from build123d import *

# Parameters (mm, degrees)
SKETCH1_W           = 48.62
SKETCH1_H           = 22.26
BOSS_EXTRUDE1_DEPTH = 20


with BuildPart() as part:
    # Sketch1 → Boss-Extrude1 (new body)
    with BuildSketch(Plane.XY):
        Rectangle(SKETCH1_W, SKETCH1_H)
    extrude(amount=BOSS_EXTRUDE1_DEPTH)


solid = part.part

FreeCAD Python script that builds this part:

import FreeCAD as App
import Part
import Sketcher
Q = App.Units.Quantity


def add_polygon(sketch, points):
    """Adds a closed chain of lines whose ends are joined by coincident constraints."""
    first, n = sketch.GeometryCount, len(points)
    for a, b in zip(points, points[1:] + points[:1]):
        sketch.addGeometry(Part.LineSegment(App.Vector(*a, 0), App.Vector(*b, 0)), False)
    for i in range(n):
        sketch.addConstraint(Sketcher.Constraint("Coincident", first + i, 2, first + (i + 1) % n, 1))

doc = App.newDocument("Part")
params = doc.addObject("Spreadsheet::Sheet", "Params")
for row, (alias, value) in enumerate([
    ("sketch1_width", "48.62 mm"),
    ("sketch1_height", "22.26 mm"),
    ("pad1_length", "20 mm"),
], start=1):
    params.set(f"A{row}", alias)
    params.set(f"B{row}", "=" + value)
    params.setAlias(f"B{row}", alias)

body = doc.addObject("PartDesign::Body", "Body")

# Sketch on XY plane
sketch1 = body.newObject("Sketcher::SketchObject", "Sketch")
sketch1.AttachmentSupport = (doc.getObject("XY_Plane"), [""])
sketch1.MapMode = "FlatFace"
add_polygon(sketch1, [(-24.31, 11.13), (-24.31, -11.13), (24.31, -11.13), (24.31, 11.13)])  # lines 0-3
sketch1.addConstraint(Sketcher.Constraint("Vertical", 0))
sketch1.addConstraint(Sketcher.Constraint("Horizontal", 1))
sketch1.addConstraint(Sketcher.Constraint("Vertical", 2))
sketch1.addConstraint(Sketcher.Constraint("Horizontal", 3))
sketch1.addConstraint(Sketcher.Constraint("Symmetric", 0, 2, 2, 2, -1, 1))
sketch1.addConstraint(Sketcher.Constraint("DistanceX", 1, 1, 1, 2, Q("48.62 mm")))
sketch1.addConstraint(Sketcher.Constraint("DistanceY", 0, 2, 0, 1, Q("22.26 mm")))
sketch1.setExpression("Constraints[9]", "Params.sketch1_width")
sketch1.setExpression("Constraints[10]", "Params.sketch1_height")
pad1 = body.newObject("PartDesign::Pad", "Pad")
pad1.Profile = sketch1
pad1.setExpression("Length", "Params.pad1_length")

doc.recompute()
